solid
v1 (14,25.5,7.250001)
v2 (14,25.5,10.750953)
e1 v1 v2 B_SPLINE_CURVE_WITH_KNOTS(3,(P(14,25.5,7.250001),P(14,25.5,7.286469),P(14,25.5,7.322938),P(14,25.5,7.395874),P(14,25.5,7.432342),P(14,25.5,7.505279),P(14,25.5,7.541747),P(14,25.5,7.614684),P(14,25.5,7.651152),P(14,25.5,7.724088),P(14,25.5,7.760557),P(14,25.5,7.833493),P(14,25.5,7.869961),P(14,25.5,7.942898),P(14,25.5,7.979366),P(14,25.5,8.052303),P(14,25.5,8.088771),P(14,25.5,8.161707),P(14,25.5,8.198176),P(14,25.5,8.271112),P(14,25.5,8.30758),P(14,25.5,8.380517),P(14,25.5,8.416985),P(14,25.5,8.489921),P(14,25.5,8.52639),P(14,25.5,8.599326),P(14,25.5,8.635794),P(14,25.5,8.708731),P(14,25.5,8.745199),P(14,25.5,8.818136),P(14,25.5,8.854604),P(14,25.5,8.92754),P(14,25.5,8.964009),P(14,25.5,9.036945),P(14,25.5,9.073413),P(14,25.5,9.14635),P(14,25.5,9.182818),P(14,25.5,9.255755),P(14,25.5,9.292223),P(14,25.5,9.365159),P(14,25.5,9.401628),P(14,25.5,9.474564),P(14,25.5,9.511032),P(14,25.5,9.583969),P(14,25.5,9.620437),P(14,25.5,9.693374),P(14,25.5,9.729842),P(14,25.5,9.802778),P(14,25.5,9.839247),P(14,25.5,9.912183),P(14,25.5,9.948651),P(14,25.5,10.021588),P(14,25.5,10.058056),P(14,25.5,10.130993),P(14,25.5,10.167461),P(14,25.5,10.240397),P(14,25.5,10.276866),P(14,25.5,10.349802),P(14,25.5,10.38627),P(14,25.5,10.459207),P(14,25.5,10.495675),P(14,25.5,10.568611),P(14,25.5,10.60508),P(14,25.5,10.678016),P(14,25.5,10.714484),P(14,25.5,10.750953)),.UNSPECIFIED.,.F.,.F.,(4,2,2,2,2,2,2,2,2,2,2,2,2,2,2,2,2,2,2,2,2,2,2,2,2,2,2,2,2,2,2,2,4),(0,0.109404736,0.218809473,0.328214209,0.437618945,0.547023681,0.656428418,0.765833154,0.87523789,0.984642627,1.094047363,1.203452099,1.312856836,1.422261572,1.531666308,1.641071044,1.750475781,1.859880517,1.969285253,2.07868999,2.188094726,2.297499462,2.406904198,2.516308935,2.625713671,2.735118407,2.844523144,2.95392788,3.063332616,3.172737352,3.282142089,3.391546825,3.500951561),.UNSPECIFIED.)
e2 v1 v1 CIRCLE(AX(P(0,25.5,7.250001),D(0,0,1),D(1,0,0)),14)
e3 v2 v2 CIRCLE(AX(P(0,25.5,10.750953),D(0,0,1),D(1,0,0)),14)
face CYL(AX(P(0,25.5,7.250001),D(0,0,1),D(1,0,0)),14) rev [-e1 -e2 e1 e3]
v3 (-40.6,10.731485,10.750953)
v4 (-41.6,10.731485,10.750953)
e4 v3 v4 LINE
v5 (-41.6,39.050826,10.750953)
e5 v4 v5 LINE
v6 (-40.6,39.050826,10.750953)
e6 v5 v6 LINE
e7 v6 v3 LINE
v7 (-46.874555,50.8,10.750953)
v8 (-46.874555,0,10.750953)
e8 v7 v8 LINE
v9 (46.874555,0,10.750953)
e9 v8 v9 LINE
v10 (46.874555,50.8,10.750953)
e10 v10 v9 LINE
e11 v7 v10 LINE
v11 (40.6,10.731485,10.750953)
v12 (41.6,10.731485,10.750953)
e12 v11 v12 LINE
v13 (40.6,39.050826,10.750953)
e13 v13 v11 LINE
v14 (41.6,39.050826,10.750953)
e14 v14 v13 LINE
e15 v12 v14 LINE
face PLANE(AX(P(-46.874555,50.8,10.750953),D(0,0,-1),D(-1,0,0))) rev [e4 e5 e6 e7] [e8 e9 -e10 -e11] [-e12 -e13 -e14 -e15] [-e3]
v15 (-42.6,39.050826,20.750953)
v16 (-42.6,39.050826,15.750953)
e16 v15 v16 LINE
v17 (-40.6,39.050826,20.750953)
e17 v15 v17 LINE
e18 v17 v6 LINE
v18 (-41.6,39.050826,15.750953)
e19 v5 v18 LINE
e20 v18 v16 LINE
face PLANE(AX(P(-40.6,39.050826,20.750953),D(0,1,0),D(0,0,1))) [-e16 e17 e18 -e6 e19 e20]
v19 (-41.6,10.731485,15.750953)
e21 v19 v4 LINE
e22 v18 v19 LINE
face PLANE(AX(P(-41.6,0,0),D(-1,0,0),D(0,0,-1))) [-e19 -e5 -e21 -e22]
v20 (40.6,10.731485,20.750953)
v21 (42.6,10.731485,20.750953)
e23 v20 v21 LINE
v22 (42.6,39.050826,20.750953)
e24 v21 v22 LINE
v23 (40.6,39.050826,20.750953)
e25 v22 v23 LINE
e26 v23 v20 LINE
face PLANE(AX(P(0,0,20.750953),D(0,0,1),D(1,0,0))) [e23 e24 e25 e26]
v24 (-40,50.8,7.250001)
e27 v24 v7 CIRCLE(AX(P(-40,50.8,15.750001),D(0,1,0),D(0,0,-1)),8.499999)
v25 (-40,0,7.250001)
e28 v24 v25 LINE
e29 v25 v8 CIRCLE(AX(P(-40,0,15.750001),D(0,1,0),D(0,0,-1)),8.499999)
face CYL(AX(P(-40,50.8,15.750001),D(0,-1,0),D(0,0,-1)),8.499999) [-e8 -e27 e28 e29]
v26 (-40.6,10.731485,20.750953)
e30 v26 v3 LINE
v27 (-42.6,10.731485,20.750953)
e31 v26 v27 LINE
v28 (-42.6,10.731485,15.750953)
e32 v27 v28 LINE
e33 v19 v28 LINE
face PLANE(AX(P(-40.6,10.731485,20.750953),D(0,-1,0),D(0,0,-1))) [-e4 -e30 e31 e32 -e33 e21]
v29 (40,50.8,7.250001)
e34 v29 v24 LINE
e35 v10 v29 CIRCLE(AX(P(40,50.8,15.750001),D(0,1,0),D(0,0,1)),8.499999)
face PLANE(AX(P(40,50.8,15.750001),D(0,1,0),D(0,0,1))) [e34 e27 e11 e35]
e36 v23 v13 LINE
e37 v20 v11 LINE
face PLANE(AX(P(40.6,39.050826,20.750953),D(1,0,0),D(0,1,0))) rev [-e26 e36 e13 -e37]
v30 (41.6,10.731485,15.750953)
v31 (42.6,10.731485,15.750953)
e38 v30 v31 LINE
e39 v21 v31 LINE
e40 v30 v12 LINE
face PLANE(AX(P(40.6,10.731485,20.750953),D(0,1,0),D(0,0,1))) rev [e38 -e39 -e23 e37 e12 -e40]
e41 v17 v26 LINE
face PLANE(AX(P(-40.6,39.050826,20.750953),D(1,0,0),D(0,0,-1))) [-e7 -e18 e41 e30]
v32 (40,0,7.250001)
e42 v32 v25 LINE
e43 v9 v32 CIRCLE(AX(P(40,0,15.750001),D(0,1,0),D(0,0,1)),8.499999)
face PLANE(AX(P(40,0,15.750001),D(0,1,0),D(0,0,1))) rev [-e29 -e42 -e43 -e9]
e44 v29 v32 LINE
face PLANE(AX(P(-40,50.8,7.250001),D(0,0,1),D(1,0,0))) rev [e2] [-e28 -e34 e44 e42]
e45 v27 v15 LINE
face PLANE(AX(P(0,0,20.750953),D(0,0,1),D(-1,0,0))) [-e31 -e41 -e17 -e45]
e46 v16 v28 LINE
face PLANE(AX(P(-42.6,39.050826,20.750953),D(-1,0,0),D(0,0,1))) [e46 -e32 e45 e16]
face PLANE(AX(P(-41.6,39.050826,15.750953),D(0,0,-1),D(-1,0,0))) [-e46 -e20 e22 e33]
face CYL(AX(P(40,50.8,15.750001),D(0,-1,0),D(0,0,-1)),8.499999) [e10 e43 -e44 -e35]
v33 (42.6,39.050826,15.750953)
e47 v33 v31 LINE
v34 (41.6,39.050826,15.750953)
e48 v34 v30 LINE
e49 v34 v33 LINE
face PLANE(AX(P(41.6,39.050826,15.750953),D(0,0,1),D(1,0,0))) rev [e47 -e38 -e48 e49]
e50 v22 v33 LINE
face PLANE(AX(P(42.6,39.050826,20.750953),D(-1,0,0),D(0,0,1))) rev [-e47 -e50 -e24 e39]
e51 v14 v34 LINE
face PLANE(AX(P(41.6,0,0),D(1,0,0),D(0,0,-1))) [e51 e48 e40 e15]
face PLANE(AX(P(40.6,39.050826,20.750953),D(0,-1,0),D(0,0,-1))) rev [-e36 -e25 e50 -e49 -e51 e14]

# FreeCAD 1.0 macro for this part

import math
import FreeCAD as App
import Part
import Sketcher
Q = App.Units.Quantity

doc = App.newDocument("Part")
params = doc.addObject("Spreadsheet::Sheet", "Params")
for row, (alias, value) in enumerate([
    ("sketch1_radius", "8.499999 mm"),
    ("sketch1_width", "80 mm"),
    ("pad1_length", "50.8 mm"),
    ("sketch2_width", "2 mm"),
    ("pad2_length", "10 mm"),
    ("sketch3_height", "5 mm"),
    ("pocket1_length", "1 mm"),
    ("sketch4_diameter", "28 mm"),
], start=1):
    params.set(f"A{row}", alias)
    params.set(f"B{row}", "=" + value)
    params.setAlias(f"B{row}", alias)

body = doc.addObject("PartDesign::Body", "Body")

# Sketch on XZ plane
sketch1 = doc.addObject("Sketcher::SketchObject", "Sketch")
body.addObject(sketch1)
sketch1.AttachmentSupport = (doc.XZ_Plane, [""])
sketch1.MapMode = "FlatFace"
sketch1.addGeometry([
    Part.LineSegment(App.Vector(-47, 11, 0), App.Vector(47, 11, 0)),
    Part.ArcOfCircle(Part.Circle(App.Vector(40, 16, 0), App.Vector(0, 0, 1), 8), math.radians(-90), math.radians(-36)),
    Part.LineSegment(App.Vector(40, 7, 0), App.Vector(-40, 7, 0)),
    Part.ArcOfCircle(Part.Circle(App.Vector(-40, 16, 0), App.Vector(0, 0, 1), 8), math.radians(-144), math.radians(-90)),
], False)
sketch1.addConstraint([
    Sketcher.Constraint("Coincident", 0, 2, 1, 2),
    Sketcher.Constraint("Tangent", 1, 1, 2, 1),
    Sketcher.Constraint("Tangent", 2, 2, 3, 2),
    Sketcher.Constraint("Coincident", 3, 1, 0, 1),
    Sketcher.Constraint("Horizontal", 0),
    Sketcher.Constraint("Horizontal", 2),
    Sketcher.Constraint("Equal", 1, 3),
    Sketcher.Constraint("Radius", 1, Q("8.499999 mm")),
    Sketcher.Constraint("DistanceX", 2, 2, 2, 1, Q("80 mm")),
    Sketcher.Constraint("DistanceX", -1, 1, 1, 3, Q("40 mm")),
    Sketcher.Constraint("DistanceY", -1, 1, 1, 3, Q("15.750001 mm")),
    Sketcher.Constraint("DistanceX", 0, 1, 0, 2, Q("93.749111 mm")),
])
sketch1.setExpression("Constraints[7]", "Params.sketch1_radius")
sketch1.setExpression("Constraints[8]", "Params.sketch1_width")
pad1 = doc.addObject("PartDesign::Pad", "Pad")
body.addObject(pad1)
pad1.Profile = sketch1
pad1.setExpression("Length", "Params.pad1_length")
pad1.Reversed = True

# Sketch on XY plane
sketch2 = doc.addObject("Sketcher::SketchObject", "Sketch001")
body.addObject(sketch2)
sketch2.AttachmentSupport = (doc.XY_Plane, [""])
sketch2.MapMode = "FlatFace"
sketch2.AttachmentOffset = App.Placement(App.Vector(0, 0, 10.750953), App.Rotation())
sketch2.addGeometry([
    Part.LineSegment(App.Vector(40.6, 39.1, 0), App.Vector(40.6, 10.7, 0)),
    Part.LineSegment(App.Vector(40.6, 10.7, 0), App.Vector(42.6, 10.7, 0)),
    Part.LineSegment(App.Vector(42.6, 10.7, 0), App.Vector(42.6, 39.1, 0)),
    Part.LineSegment(App.Vector(42.6, 39.1, 0), App.Vector(40.6, 39.1, 0)),
], False)
sketch2.addConstraint([
    Sketcher.Constraint("Coincident", 0, 2, 1, 1),
    Sketcher.Constraint("Coincident", 1, 2, 2, 1),
    Sketcher.Constraint("Coincident", 2, 2, 3, 1),
    Sketcher.Constraint("Coincident", 3, 2, 0, 1),
    Sketcher.Constraint("Vertical", 0),
    Sketcher.Constraint("Horizontal", 1),
    Sketcher.Constraint("Vertical", 2),
    Sketcher.Constraint("Horizontal", 3),
    Sketcher.Constraint("DistanceX", 1, 1, 1, 2, Q("2 mm")),
    Sketcher.Constraint("DistanceX", -1, 1, 0, 2, Q("40.6 mm")),
    Sketcher.Constraint("DistanceY", 0, 2, 0, 1, Q("28.319341 mm")),
    Sketcher.Constraint("DistanceY", -1, 1, 0, 2, Q("10.731485 mm")),
])
sketch2.setExpression("Constraints[8]", "Params.sketch2_width")
pad2 = doc.addObject("PartDesign::Pad", "Pad001")
body.addObject(pad2)
pad2.Profile = sketch2
pad2.setExpression("Length", "Params.pad2_length")

# Sketch on YZ plane
sketch3 = doc.addObject("Sketcher::SketchObject", "Sketch002")
body.addObject(sketch3)
sketch3.AttachmentSupport = (doc.YZ_Plane, [""])
sketch3.MapMode = "FlatFace"
sketch3.AttachmentOffset = App.Placement(App.Vector(0, 0, 42.6), App.Rotation())
sketch3.addGeometry([
    Part.LineSegment(App.Vector(39, 16, 0), App.Vector(11, 16, 0)),
    Part.LineSegment(App.Vector(11, 16, 0), App.Vector(11, 11, 0)),
    Part.LineSegment(App.Vector(11, 11, 0), App.Vector(39, 11, 0)),
    Part.LineSegment(App.Vector(39, 11, 0), App.Vector(39, 16, 0)),
], False)
sketch3.addConstraint([
    Sketcher.Constraint("Coincident", 0, 2, 1, 1),
    Sketcher.Constraint("Coincident", 1, 2, 2, 1),
    Sketcher.Constraint("Coincident", 2, 2, 3, 1),
    Sketcher.Constraint("Coincident", 3, 2, 0, 1),
    Sketcher.Constraint("Horizontal", 0),
    Sketcher.Constraint("Vertical", 1),
    Sketcher.Constraint("Horizontal", 2),
    Sketcher.Constraint("Vertical", 3),
    Sketcher.Constraint("DistanceY", 1, 2, 1, 1, Q("5 mm")),
    Sketcher.Constraint("DistanceX", 0, 2, 0, 1, Q("28.319341 mm")),
    Sketcher.Constraint("DistanceX", -1, 1, 0, 2, Q("10.731485 mm")),
    Sketcher.Constraint("DistanceY", -1, 1, 0, 2, Q("15.750953 mm")),
])
sketch3.setExpression("Constraints[8]", "Params.sketch3_height")
pocket1 = doc.addObject("PartDesign::Pocket", "Pocket")
body.addObject(pocket1)
pocket1.Profile = sketch3
pocket1.setExpression("Length", "Params.pocket1_length")
doc.recompute()

mirrored = doc.addObject("PartDesign::Mirrored", "Mirrored")
body.addObject(mirrored)
mirrored.Originals = [pad2, pocket1]
mirrored.MirrorPlane = (doc.YZ_Plane, [""])
body.Tip = mirrored

# Sketch on XY plane
sketch4 = doc.addObject("Sketcher::SketchObject", "Sketch003")
body.addObject(sketch4)
sketch4.AttachmentSupport = (doc.XY_Plane, [""])
sketch4.MapMode = "FlatFace"
sketch4.AttachmentOffset = App.Placement(App.Vector(0, 0, 10.750953), App.Rotation())
sketch4.addGeometry(Part.Circle(App.Vector(0, 26, 0), App.Vector(0, 0, 1), 14), False)
sketch4.addConstraint([
    Sketcher.Constraint("PointOnObject", 0, 3, -2),
    Sketcher.Constraint("Diameter", 0, Q("28 mm")),
    Sketcher.Constraint("DistanceY", -1, 1, 0, 3, Q("25.5 mm")),
])
sketch4.setExpression("Constraints[1]", "Params.sketch4_diameter")
pocket2 = doc.addObject("PartDesign::Pocket", "Pocket001")
body.addObject(pocket2)
pocket2.Profile = sketch4
pocket2.Type = "ThroughAll"

doc.recompute()
